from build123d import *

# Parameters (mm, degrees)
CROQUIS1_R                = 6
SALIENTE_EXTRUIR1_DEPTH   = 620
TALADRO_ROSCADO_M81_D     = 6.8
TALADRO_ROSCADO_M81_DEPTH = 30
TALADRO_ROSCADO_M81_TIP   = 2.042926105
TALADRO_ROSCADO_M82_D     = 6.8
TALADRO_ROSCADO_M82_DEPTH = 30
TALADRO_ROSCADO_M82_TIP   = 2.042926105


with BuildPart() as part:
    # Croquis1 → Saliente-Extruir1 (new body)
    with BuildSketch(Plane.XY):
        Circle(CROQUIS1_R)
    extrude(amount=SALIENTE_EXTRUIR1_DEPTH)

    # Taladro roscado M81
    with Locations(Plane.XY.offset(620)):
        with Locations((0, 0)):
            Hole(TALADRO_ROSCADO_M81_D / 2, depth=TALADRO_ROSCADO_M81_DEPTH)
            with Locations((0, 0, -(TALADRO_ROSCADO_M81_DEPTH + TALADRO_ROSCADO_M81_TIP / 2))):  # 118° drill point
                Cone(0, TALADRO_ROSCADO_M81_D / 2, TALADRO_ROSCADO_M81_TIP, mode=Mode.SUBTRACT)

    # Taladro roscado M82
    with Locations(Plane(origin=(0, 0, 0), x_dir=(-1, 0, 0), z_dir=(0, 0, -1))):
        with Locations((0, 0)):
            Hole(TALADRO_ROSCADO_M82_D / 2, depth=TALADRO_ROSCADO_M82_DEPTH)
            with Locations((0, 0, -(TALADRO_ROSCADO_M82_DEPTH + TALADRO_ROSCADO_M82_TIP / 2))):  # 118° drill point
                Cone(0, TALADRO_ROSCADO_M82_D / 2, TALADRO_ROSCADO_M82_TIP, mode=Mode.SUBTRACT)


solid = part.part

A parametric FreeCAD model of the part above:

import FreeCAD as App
import Part
import Sketcher

V = App.Vector
Q = App.Units.Quantity

doc = App.newDocument("Part")
body = doc.addObject("PartDesign::Body", "Body")

sketch1 = doc.addObject("Sketcher::SketchObject", "Sketch")
body.addObject(sketch1)
sketch1.AttachmentSupport = (doc.XY_Plane, [""])
sketch1.MapMode = "FlatFace"
sketch1.addGeometry(Part.Circle(V(0, 0, 0), V(0, 0, 1), 6), False)
sketch1.addConstraint([
    Sketcher.Constraint("Coincident", 0, 3, -1, 1),
    Sketcher.Constraint("Diameter", 0, Q("12 mm")),
])
pad1 = doc.addObject("PartDesign::Pad", "Pad")
body.addObject(pad1)
pad1.Profile = sketch1
pad1.Length = 620

sketch2 = doc.addObject("Sketcher::SketchObject", "Sketch001")
body.addObject(sketch2)
sketch2.AttachmentSupport = (doc.XY_Plane, [""])
sketch2.MapMode = "FlatFace"
sketch2.AttachmentOffset = App.Placement(V(0, 0, 620), App.Rotation())
sketch2.addGeometry(Part.Circle(V(0, 0, 0), V(0, 0, 1), 3.4), False)
sketch2.addConstraint([
    Sketcher.Constraint("Coincident", 0, 3, -1, 1),
    Sketcher.Constraint("Diameter", 0, Q("6.8 mm")),
])
doc.recompute()
hole = doc.addObject("PartDesign::Hole", "Hole")
body.addObject(hole)
hole.Profile = sketch2
hole.ThreadType = "None"
hole.Diameter = 6.8
hole.DepthType = "Dimension"
hole.Depth = 30
hole.DrillPoint = "Angled"
hole.DrillPointAngle = 118

sketch3 = doc.addObject("Sketcher::SketchObject", "Sketch002")
body.addObject(sketch3)
sketch3.AttachmentSupport = (doc.XY_Plane, [""])
sketch3.MapMode = "FlatFace"
sketch3.addGeometry(Part.Circle(V(0, 0, 0), V(0, 0, 1), 3.4), False)
sketch3.addConstraint([
    Sketcher.Constraint("Coincident", 0, 3, -1, 1),
    Sketcher.Constraint("Diameter", 0, Q("6.8 mm")),
])
doc.recompute()
hole2 = doc.addObject("PartDesign::Hole", "Hole001")
body.addObject(hole2)
hole2.Profile = sketch3
hole2.ThreadType = "None"
hole2.Diameter = 6.8
hole2.DepthType = "Dimension"
hole2.Depth = 30
hole2.DrillPoint = "Angled"
hole2.DrillPointAngle = 118
hole2.Reversed = True

doc.recompute()
